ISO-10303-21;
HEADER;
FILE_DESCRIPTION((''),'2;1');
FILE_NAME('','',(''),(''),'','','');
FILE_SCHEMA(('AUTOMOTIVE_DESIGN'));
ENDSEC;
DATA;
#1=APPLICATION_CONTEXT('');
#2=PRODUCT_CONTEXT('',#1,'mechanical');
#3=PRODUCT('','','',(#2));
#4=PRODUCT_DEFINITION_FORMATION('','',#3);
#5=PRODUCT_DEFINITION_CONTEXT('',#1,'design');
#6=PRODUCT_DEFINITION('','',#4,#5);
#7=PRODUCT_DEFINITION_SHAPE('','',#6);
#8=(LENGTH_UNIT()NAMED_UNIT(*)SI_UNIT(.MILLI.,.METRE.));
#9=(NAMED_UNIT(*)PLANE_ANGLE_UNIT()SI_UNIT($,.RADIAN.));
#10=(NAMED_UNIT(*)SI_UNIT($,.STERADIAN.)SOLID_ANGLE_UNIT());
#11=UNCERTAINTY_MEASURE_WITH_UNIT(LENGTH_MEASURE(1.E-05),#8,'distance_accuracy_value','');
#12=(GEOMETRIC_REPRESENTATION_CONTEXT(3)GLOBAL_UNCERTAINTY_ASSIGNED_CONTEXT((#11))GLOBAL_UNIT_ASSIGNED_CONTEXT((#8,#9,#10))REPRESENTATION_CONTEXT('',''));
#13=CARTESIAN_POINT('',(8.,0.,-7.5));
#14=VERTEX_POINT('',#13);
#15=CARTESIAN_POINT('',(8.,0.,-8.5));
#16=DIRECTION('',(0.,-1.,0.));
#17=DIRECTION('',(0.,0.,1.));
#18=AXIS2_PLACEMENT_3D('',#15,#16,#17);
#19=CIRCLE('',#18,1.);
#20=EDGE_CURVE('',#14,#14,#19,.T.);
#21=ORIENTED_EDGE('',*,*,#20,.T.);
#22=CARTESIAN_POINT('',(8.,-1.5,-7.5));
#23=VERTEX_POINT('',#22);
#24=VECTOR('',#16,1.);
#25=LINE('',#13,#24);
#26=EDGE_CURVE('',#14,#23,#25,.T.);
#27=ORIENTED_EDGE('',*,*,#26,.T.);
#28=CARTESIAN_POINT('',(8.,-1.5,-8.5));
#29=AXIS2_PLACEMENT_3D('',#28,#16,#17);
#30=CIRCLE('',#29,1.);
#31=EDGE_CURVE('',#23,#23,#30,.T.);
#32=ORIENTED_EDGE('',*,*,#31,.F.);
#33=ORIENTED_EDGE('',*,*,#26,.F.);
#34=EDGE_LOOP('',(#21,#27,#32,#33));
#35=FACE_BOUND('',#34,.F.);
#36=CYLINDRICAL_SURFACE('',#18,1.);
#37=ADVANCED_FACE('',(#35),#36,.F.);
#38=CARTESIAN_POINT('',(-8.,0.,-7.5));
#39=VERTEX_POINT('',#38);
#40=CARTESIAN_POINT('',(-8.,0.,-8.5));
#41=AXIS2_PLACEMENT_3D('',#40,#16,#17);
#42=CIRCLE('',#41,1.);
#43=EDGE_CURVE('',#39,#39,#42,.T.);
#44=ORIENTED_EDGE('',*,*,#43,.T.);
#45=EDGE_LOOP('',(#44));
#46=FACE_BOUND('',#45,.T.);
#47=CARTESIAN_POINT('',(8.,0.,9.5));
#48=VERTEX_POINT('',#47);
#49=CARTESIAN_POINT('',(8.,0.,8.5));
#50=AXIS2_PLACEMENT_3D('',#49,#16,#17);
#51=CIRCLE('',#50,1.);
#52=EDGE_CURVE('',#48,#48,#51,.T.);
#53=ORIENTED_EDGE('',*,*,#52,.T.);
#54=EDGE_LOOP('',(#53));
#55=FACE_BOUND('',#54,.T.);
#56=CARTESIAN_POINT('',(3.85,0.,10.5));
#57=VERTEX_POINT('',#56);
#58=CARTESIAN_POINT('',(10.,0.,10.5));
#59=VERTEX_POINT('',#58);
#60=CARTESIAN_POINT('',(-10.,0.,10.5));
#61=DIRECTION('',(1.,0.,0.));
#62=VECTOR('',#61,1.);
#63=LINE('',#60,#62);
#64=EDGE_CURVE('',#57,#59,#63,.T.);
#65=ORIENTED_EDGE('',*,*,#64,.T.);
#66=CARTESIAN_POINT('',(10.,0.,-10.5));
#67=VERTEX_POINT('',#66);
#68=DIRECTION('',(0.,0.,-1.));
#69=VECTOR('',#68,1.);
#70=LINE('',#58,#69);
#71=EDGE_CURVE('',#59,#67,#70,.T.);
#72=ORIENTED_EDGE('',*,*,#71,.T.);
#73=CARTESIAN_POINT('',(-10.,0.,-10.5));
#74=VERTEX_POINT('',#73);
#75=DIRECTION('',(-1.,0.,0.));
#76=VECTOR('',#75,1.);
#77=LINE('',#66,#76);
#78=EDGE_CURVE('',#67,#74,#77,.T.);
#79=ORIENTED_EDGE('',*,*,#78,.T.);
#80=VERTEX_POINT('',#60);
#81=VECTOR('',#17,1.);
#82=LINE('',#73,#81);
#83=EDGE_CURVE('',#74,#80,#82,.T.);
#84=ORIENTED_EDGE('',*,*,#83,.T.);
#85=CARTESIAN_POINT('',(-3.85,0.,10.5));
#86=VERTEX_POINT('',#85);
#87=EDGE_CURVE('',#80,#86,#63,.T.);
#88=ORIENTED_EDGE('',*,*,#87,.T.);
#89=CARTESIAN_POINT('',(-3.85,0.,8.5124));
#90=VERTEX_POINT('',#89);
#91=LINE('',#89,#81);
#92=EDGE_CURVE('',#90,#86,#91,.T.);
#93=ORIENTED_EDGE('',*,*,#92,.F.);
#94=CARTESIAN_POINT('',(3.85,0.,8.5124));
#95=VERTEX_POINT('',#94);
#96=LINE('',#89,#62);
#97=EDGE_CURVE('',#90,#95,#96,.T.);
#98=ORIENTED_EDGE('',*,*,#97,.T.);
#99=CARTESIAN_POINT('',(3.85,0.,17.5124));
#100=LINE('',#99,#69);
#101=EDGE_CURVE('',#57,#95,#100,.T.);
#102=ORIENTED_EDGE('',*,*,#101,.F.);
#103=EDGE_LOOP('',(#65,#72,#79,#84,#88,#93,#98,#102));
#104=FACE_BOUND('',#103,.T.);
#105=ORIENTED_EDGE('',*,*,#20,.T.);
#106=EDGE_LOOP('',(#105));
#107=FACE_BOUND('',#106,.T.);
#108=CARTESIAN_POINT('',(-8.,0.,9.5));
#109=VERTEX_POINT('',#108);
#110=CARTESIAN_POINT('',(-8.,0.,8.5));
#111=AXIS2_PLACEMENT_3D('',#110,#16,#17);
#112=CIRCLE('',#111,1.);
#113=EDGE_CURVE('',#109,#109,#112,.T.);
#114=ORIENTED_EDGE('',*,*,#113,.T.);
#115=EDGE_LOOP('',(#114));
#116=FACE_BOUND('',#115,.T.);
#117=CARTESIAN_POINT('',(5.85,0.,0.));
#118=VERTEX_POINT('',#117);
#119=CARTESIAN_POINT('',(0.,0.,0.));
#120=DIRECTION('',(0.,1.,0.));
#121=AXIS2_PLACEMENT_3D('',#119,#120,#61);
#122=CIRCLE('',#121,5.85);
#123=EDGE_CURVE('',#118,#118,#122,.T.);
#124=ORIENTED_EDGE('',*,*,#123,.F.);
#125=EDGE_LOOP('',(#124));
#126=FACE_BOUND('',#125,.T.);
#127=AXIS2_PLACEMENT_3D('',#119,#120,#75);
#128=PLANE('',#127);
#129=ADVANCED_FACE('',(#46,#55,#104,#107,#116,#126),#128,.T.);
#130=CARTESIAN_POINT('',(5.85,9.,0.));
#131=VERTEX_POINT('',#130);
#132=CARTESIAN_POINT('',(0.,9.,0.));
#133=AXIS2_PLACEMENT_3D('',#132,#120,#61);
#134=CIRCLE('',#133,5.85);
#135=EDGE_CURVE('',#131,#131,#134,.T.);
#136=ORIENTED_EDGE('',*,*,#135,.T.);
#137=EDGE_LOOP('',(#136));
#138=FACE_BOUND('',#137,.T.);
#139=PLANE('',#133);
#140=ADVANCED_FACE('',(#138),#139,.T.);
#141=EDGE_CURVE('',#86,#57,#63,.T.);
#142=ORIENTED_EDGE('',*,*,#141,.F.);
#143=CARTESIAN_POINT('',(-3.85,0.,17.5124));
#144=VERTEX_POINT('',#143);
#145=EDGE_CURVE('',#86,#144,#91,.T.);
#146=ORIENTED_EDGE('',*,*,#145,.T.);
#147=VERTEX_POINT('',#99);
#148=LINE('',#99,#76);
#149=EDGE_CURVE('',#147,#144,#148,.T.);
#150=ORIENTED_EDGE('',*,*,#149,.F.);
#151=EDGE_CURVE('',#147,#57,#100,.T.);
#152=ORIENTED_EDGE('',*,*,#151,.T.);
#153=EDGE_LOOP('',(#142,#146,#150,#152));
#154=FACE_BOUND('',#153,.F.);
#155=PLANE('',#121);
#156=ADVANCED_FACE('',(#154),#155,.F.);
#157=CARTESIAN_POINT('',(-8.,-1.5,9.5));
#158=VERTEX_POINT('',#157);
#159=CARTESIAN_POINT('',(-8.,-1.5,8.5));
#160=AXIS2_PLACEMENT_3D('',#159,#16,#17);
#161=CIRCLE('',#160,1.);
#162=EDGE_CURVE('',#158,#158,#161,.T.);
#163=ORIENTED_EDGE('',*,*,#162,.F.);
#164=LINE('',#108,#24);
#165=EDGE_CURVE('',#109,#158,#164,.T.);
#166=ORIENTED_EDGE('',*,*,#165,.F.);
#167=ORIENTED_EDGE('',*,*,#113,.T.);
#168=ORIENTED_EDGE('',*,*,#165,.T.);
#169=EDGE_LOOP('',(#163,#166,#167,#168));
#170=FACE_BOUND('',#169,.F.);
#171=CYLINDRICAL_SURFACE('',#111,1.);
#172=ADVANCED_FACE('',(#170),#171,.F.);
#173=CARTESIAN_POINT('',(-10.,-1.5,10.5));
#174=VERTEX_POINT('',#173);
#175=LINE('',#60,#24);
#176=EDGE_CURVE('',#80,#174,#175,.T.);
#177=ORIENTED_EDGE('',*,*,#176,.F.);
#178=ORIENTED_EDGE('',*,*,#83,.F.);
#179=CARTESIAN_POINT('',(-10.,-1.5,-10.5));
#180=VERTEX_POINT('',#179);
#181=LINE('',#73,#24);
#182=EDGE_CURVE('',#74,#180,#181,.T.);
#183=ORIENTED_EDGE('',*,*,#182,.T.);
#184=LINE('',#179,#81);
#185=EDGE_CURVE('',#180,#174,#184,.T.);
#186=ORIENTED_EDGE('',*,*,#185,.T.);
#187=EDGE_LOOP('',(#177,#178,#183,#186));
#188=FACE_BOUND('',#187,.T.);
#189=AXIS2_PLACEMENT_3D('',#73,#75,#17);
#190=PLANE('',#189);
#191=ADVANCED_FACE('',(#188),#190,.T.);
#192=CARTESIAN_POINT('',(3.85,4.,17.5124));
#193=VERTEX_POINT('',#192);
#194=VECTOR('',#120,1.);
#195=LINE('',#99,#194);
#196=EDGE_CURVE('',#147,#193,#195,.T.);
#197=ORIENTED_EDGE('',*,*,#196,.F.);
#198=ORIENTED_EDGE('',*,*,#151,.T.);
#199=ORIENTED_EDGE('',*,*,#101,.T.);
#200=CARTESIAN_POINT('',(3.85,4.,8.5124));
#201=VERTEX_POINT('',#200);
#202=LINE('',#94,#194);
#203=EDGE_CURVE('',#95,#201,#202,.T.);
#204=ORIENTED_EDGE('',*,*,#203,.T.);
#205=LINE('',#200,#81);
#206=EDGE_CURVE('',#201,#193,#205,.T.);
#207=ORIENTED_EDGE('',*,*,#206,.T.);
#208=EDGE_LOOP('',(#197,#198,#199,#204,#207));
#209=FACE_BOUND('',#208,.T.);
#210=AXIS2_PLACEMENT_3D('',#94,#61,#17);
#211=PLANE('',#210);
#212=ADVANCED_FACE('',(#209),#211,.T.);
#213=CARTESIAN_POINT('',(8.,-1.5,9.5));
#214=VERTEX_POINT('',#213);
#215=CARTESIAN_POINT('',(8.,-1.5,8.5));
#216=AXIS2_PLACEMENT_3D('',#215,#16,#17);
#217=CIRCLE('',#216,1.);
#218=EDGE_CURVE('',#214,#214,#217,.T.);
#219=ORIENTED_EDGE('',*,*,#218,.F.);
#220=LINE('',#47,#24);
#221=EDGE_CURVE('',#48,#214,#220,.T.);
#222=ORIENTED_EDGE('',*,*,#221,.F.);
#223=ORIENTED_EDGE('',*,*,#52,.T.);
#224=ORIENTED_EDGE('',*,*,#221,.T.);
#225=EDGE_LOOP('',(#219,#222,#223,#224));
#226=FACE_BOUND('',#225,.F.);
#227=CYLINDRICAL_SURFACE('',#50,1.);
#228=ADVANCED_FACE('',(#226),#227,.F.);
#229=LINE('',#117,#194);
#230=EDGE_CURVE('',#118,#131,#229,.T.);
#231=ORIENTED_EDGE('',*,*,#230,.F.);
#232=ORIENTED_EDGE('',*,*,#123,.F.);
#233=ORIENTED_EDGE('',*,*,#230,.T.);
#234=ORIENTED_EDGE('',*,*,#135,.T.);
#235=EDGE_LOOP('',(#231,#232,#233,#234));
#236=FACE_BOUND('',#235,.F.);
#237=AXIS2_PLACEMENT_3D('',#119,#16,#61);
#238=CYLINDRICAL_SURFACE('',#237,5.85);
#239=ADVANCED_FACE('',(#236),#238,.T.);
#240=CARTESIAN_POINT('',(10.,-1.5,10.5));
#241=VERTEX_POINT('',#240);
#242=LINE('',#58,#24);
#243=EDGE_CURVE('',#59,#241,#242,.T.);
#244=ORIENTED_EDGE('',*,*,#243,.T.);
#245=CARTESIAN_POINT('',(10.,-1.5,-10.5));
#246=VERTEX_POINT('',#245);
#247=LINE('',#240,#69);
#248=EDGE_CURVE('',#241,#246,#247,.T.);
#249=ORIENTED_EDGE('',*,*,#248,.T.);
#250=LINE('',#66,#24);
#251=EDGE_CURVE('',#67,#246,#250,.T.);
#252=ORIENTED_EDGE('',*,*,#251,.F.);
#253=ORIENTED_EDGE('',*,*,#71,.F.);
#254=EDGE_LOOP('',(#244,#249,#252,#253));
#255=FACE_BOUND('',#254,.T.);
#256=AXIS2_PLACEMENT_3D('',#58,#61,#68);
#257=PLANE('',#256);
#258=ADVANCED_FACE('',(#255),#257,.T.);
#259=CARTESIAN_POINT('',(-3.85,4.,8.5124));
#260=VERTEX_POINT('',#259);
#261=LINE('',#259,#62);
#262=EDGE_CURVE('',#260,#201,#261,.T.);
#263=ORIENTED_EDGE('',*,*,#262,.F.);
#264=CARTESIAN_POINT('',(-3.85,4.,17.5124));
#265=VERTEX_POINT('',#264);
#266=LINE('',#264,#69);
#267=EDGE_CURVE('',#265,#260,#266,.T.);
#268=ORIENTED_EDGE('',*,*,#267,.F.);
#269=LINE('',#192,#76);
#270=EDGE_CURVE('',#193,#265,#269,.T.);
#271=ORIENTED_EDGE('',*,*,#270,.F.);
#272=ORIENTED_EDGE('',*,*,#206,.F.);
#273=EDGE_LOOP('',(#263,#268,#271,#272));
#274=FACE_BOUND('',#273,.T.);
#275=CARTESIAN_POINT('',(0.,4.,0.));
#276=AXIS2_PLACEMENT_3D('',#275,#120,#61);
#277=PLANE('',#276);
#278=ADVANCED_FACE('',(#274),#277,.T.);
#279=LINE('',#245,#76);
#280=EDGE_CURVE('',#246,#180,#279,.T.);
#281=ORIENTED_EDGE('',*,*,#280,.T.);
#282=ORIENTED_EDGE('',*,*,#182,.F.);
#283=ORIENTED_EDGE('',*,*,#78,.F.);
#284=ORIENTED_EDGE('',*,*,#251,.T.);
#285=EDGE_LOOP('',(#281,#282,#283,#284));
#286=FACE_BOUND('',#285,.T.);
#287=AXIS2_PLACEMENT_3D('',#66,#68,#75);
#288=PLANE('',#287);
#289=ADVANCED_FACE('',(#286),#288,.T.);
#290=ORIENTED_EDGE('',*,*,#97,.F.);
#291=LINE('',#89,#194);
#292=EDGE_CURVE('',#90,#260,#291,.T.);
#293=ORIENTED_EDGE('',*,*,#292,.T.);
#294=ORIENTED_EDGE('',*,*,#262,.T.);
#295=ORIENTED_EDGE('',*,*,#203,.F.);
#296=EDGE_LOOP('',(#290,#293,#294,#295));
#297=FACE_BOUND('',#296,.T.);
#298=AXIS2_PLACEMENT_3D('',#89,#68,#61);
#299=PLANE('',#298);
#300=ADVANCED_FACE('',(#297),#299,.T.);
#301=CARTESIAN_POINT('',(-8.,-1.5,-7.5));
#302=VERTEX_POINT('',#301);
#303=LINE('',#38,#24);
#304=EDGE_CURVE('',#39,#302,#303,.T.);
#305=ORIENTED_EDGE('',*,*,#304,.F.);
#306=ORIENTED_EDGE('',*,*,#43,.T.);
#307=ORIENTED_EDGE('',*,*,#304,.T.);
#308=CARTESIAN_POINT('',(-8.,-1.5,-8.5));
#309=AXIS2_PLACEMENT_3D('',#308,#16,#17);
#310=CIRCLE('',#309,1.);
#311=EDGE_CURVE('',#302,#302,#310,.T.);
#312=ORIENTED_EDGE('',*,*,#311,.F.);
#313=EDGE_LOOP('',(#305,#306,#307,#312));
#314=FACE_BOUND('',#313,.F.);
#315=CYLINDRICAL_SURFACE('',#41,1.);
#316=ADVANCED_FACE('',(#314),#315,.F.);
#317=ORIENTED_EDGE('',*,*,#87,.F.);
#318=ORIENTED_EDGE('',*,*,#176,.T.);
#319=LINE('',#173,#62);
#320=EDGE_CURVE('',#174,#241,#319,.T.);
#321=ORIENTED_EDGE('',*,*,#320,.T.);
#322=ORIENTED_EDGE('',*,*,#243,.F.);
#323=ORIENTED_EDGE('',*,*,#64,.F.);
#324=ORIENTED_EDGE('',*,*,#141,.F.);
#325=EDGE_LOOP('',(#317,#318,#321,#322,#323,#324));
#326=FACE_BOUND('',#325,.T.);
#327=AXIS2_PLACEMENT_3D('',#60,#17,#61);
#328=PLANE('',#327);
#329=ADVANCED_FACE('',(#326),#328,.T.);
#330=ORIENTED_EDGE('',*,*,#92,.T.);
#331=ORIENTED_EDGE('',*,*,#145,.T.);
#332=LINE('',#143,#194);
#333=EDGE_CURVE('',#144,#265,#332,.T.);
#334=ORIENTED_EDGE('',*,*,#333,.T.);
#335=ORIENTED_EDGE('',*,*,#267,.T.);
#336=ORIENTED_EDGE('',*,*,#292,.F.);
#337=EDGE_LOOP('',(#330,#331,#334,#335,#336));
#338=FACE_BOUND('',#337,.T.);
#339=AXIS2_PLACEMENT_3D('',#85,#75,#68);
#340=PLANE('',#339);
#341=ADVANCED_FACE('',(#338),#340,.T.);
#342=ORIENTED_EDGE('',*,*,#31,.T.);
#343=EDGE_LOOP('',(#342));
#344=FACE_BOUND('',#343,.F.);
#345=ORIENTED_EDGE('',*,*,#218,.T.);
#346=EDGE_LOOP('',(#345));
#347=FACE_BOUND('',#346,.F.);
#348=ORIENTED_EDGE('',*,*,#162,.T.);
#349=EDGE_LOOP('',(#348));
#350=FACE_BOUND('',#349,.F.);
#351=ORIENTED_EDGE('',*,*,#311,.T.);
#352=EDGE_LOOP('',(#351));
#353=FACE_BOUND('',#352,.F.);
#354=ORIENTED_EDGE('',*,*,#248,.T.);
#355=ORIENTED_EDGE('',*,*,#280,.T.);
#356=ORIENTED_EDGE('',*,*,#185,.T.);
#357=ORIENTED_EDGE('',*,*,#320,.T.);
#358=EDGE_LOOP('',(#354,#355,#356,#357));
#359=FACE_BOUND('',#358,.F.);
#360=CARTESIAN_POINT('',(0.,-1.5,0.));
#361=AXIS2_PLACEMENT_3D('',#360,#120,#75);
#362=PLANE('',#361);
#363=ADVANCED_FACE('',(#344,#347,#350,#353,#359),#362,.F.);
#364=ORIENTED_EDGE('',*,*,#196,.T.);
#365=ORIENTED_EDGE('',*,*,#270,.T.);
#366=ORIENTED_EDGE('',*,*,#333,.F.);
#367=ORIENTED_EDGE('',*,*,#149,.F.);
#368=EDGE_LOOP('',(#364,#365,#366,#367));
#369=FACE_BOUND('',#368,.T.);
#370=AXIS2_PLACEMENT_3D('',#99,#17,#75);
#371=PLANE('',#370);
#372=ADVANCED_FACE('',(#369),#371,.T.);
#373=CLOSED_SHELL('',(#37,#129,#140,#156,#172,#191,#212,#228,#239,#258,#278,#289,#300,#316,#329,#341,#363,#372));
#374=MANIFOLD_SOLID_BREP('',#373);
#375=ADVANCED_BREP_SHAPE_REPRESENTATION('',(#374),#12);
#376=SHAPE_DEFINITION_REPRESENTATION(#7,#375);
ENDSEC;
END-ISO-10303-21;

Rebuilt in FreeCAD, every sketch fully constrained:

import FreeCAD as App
import Part
import Sketcher

V = App.Vector

doc = App.newDocument("Part")
params = doc.addObject("Spreadsheet::Sheet", "Params")
for row, (alias, value) in enumerate([
    ("sketch1_width", "20 mm"),
    ("sketch1_height", "21 mm"),
    ("pad1_length", "1.5 mm"),
    ("sketch2_diameter", "2 mm"),
    ("hole_diameter", "2 mm"),
    ("sketch3_height", "9 mm"),
    ("sketch3_width", "7.7 mm"),
    ("pad2_length", "4 mm"),
    ("sketch4_diameter", "11.7 mm"),
    ("pad3_length", "9 mm"),
], start=1):
    params.set(f"A{row}", alias)
    params.set(f"B{row}", "=" + value)
    params.setAlias(f"B{row}", alias)

body = doc.addObject("PartDesign::Body", "Body")

sketch1 = body.newObject("Sketcher::SketchObject", "Sketch")
sketch1.AttachmentSupport = (doc.getObject("XZ_Plane"), [""])
sketch1.MapMode = "FlatFace"
sketch1.addGeometry(Part.LineSegment(V(-10, -10, 0), V(-10, 10, 0)), False)
sketch1.addGeometry(Part.LineSegment(V(-10, 10, 0), V(10, 10, 0)), False)
sketch1.addGeometry(Part.LineSegment(V(10, 10, 0), V(10, -10, 0)), False)
sketch1.addGeometry(Part.LineSegment(V(10, -10, 0), V(-10, -10, 0)), False)
sketch1.addConstraint(Sketcher.Constraint("Coincident", 0, 2, 1, 1))
sketch1.addConstraint(Sketcher.Constraint("Coincident", 1, 2, 2, 1))
sketch1.addConstraint(Sketcher.Constraint("Coincident", 2, 2, 3, 1))
sketch1.addConstraint(Sketcher.Constraint("Coincident", 3, 2, 0, 1))
sketch1.addConstraint(Sketcher.Constraint("Vertical", 0))
sketch1.addConstraint(Sketcher.Constraint("Horizontal", 1))
sketch1.addConstraint(Sketcher.Constraint("Vertical", 2))
sketch1.addConstraint(Sketcher.Constraint("Horizontal", 3))
sketch1.addConstraint(Sketcher.Constraint("Symmetric", 0, 2, 2, 2, -1, 1))
sketch1.addConstraint(Sketcher.Constraint("DistanceX", 1, 1, 1, 2, 20.0))
sketch1.addConstraint(Sketcher.Constraint("DistanceY", 0, 1, 0, 2, 21.0))
sketch1.setExpression("Constraints[9]", "Params.sketch1_width")
sketch1.setExpression("Constraints[10]", "Params.sketch1_height")
pad1 = body.newObject("PartDesign::Pad", "Pad")
pad1.Profile = sketch1
pad1.setExpression("Length", "Params.pad1_length")

sketch2 = body.newObject("Sketcher::SketchObject", "Sketch001")
sketch2.AttachmentSupport = (doc.getObject("XZ_Plane"), [""])
sketch2.MapMode = "FlatFace"
sketch2.addGeometry(Part.Circle(V(-8, 8.5, 0), V(0, 0, 1), 1), False)
sketch2.addGeometry(Part.Circle(V(-8, -8.5, 0), V(0, 0, 1), 1), False)
sketch2.addGeometry(Part.Circle(V(8, -8.5, 0), V(0, 0, 1), 1), False)
sketch2.addGeometry(Part.Circle(V(8, 8.5, 0), V(0, 0, 1), 1), False)
sketch2.addConstraint(Sketcher.Constraint("Equal", 0, 1))
sketch2.addConstraint(Sketcher.Constraint("Equal", 1, 2))
sketch2.addConstraint(Sketcher.Constraint("Equal", 2, 3))
sketch2.addConstraint(Sketcher.Constraint("Symmetric", 0, 3, 2, 3, -1, 1))
sketch2.addConstraint(Sketcher.Constraint("Symmetric", 1, 3, 3, 3, -1, 1))
sketch2.addConstraint(Sketcher.Constraint("Symmetric", 1, 3, 2, 3, -2))
sketch2.addConstraint(Sketcher.Constraint("Diameter", 0, 2.0))
sketch2.addConstraint(Sketcher.Constraint("DistanceX", 0, 3, -1, 1, 8.0))
sketch2.addConstraint(Sketcher.Constraint("DistanceY", 1, 3, 0, 3, 17.0))
sketch2.setExpression("Constraints[6]", "Params.sketch2_diameter")
doc.recompute()
hole = body.newObject("PartDesign::Hole", "Hole")
hole.Profile = sketch2
hole.ThreadType = "None"
hole.setExpression("Diameter", "Params.hole_diameter")
hole.DepthType = "ThroughAll"
hole.Reversed = True

sketch3 = body.newObject("Sketcher::SketchObject", "Sketch002")
sketch3.AttachmentSupport = (doc.getObject("XZ_Plane"), [""])
sketch3.MapMode = "FlatFace"
sketch3.addGeometry(Part.LineSegment(V(4, 9, 0), V(-4, 9, 0)), False)
sketch3.addGeometry(Part.LineSegment(V(-4, 9, 0), V(-4, 18, 0)), False)
sketch3.addGeometry(Part.LineSegment(V(-4, 18, 0), V(4, 18, 0)), False)
sketch3.addGeometry(Part.LineSegment(V(4, 18, 0), V(4, 9, 0)), False)
sketch3.addConstraint(Sketcher.Constraint("Coincident", 0, 2, 1, 1))
sketch3.addConstraint(Sketcher.Constraint("Coincident", 1, 2, 2, 1))
sketch3.addConstraint(Sketcher.Constraint("Coincident", 2, 2, 3, 1))
sketch3.addConstraint(Sketcher.Constraint("Coincident", 3, 2, 0, 1))
sketch3.addConstraint(Sketcher.Constraint("Horizontal", 0))
sketch3.addConstraint(Sketcher.Constraint("Vertical", 1))
sketch3.addConstraint(Sketcher.Constraint("Horizontal", 2))
sketch3.addConstraint(Sketcher.Constraint("Vertical", 3))
sketch3.addConstraint(Sketcher.Constraint("DistanceY", 1, 1, 1, 2, 9.0))
sketch3.addConstraint(Sketcher.Constraint("DistanceX", 0, 2, 0, 1, 7.7))
sketch3.addConstraint(Sketcher.Constraint("DistanceX", 0, 2, -1, 1, 3.85))
sketch3.addConstraint(Sketcher.Constraint("DistanceY", -1, 1, 0, 2, 8.5124))
sketch3.setExpression("Constraints[8]", "Params.sketch3_height")
sketch3.setExpression("Constraints[9]", "Params.sketch3_width")
pad2 = body.newObject("PartDesign::Pad", "Pad001")
pad2.Profile = sketch3
pad2.setExpression("Length", "Params.pad2_length")
pad2.Reversed = True

sketch4 = body.newObject("Sketcher::SketchObject", "Sketch003")
sketch4.AttachmentSupport = (doc.getObject("XZ_Plane"), [""])
sketch4.MapMode = "FlatFace"
sketch4.addGeometry(Part.Circle(V(0, 0, 0), V(0, 0, 1), 6), False)
sketch4.addConstraint(Sketcher.Constraint("Coincident", 0, 3, -1, 1))
sketch4.addConstraint(Sketcher.Constraint("Diameter", 0, 11.7))
sketch4.setExpression("Constraints[1]", "Params.sketch4_diameter")
pad3 = body.newObject("PartDesign::Pad", "Pad002")
pad3.Profile = sketch4
pad3.setExpression("Length", "Params.pad3_length")
pad3.Reversed = True

doc.recompute()
